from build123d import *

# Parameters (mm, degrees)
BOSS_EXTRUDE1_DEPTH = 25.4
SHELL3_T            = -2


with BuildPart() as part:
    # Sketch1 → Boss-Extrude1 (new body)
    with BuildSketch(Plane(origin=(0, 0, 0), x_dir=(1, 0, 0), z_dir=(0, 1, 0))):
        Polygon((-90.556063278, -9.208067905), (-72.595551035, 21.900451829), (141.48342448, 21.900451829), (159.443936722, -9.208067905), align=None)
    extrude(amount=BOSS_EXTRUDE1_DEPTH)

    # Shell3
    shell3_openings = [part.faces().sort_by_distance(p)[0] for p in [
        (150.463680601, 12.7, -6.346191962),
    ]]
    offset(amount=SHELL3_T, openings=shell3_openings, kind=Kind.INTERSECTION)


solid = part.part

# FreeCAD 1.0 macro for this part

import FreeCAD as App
import Part
import Sketcher
Q = App.Units.Quantity


def faces_at(feature, points):
    """Names of the faces that lie closest to the given points."""
    faces = feature.Shape.Faces
    near = lambda p: min(range(len(faces)), key=lambda i: faces[i].distToShape(Part.Vertex(*p))[0])
    return sorted({f"Face{near(p) + 1}" for p in points})

doc = App.newDocument("Part")
body = doc.addObject("PartDesign::Body", "Body")

# Sketch on XZ plane
sketch1 = doc.addObject("Sketcher::SketchObject", "Sketch")
body.addObject(sketch1)
sketch1.AttachmentSupport = (doc.XZ_Plane, [""])
sketch1.MapMode = "FlatFace"
sketch1.addGeometry([
    Part.LineSegment(App.Vector(-72.595551, -21.900452, 0), App.Vector(-90.556063, 9.208068, 0)),
    Part.LineSegment(App.Vector(-90.556063, 9.208068, 0), App.Vector(159.443937, 9.208068, 0)),
    Part.LineSegment(App.Vector(159.443937, 9.208068, 0), App.Vector(141.483424, -21.900452, 0)),
    Part.LineSegment(App.Vector(141.483424, -21.900452, 0), App.Vector(-72.595551, -21.900452, 0)),
], False)
sketch1.addConstraint([
    Sketcher.Constraint("Coincident", 0, 2, 1, 1),
    Sketcher.Constraint("Coincident", 1, 2, 2, 1),
    Sketcher.Constraint("Coincident", 2, 2, 3, 1),
    Sketcher.Constraint("Coincident", 3, 2, 0, 1),
    Sketcher.Constraint("Horizontal", 1),
    Sketcher.Constraint("Horizontal", 3),
    Sketcher.Constraint("Equal", 0, 2),
    Sketcher.Constraint("DistanceX", 1, 1, 1, 2, 250.0),
    Sketcher.Constraint("Angle", 0, Q("120 deg")),
    Sketcher.Constraint("DistanceX", 3, 2, 3, 1, 214.078976),
    Sketcher.Constraint("DistanceY", 2, 2, -1, 1, 21.900452),
    Sketcher.Constraint("DistanceX", 3, 2, -1, 1, 72.595551),
])
pad1 = doc.addObject("PartDesign::Pad", "Pad")
body.addObject(pad1)
pad1.Profile = sketch1
pad1.Length = 25.4
pad1.Reversed = True
doc.recompute()

thickness = doc.addObject("PartDesign::Thickness", "Thickness")
body.addObject(thickness)
thickness.Base = (pad1, faces_at(pad1, [(150.464, 12.7, -6.346)]))
thickness.Value = 2
thickness.Reversed = True
thickness.Join = "Intersection"

doc.recompute()
